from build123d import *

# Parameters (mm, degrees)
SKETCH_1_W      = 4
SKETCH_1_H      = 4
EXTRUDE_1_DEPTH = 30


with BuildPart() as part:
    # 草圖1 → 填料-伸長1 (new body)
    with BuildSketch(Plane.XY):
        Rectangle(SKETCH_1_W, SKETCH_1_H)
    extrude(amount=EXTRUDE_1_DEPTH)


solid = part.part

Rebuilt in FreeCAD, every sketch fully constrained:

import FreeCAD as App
import Part
import Sketcher
from FreeCAD import Vector


def add_polygon(sketch, points):
    """Adds a closed chain of lines whose ends are joined by coincident constraints."""
    first, n = sketch.GeometryCount, len(points)
    for a, b in zip(points, points[1:] + points[:1]):
        sketch.addGeometry(Part.LineSegment(App.Vector(*a, 0), App.Vector(*b, 0)), False)
    for i in range(n):
        sketch.addConstraint(Sketcher.Constraint("Coincident", first + i, 2, first + (i + 1) % n, 1))

doc = App.newDocument("Part")
params = doc.addObject("Spreadsheet::Sheet", "Params")
for row, (alias, value) in enumerate([
    ("sketch1_width", "4 mm"),
    ("pad1_length", "30 mm"),
], start=1):
    params.set(f"A{row}", alias)
    params.set(f"B{row}", "=" + value)
    params.setAlias(f"B{row}", alias)

body = doc.addObject("PartDesign::Body", "Body")

sketch1 = body.newObject("Sketcher::SketchObject", "Sketch")
sketch1.AttachmentSupport = (doc.getObject("XY_Plane"), [""])
sketch1.MapMode = "FlatFace"
add_polygon(sketch1, [(-2, 2), (-2, -2), (2, -2), (2, 2)])
sketch1.addConstraint(Sketcher.Constraint("Vertical", 0))
sketch1.addConstraint(Sketcher.Constraint("Horizontal", 1))
sketch1.addConstraint(Sketcher.Constraint("Vertical", 2))
sketch1.addConstraint(Sketcher.Constraint("Horizontal", 3))
sketch1.addConstraint(Sketcher.Constraint("Symmetric", 0, 2, 2, 2, -1, 1))
sketch1.addConstraint(Sketcher.Constraint("Equal", 3, 0))
sketch1.addConstraint(Sketcher.Constraint("DistanceX", 1, 1, 1, 2, 4.0))
sketch1.setExpression("Constraints[10]", "Params.sketch1_width")
pad1 = body.newObject("PartDesign::Pad", "Pad")
pad1.Profile = sketch1
pad1.setExpression("Length", "Params.pad1_length")

doc.recompute()
